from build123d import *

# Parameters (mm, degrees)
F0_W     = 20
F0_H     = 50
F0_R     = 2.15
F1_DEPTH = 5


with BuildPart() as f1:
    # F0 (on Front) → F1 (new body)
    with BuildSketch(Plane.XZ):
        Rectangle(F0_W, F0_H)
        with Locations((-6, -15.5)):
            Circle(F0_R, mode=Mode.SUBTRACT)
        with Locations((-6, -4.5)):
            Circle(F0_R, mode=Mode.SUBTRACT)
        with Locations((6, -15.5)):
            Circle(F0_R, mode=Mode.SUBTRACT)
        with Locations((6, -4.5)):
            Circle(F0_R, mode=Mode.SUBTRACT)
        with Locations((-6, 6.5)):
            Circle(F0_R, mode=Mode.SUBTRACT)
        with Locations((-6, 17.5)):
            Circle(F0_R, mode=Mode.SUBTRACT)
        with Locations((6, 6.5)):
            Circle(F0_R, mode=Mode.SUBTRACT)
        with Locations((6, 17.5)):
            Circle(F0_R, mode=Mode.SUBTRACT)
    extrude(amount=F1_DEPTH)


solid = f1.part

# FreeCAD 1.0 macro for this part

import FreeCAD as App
import Part
import Sketcher

doc = App.newDocument("Part")
body = doc.addObject("PartDesign::Body", "Body")

# Sketch on XZ plane
sketch1 = body.newObject("Sketcher::SketchObject", "Sketch")
sketch1.AttachmentSupport = (doc.getObject("XZ_Plane"), [""])
sketch1.MapMode = "FlatFace"
sketch1.addGeometry([
    Part.LineSegment(App.Vector(-10, 25, 0), App.Vector(-10, -25, 0)),  # 0
    Part.LineSegment(App.Vector(-10, -25, 0), App.Vector(10, -25, 0)),  # 1
    Part.LineSegment(App.Vector(10, -25, 0), App.Vector(10, 25, 0)),  # 2
    Part.LineSegment(App.Vector(10, 25, 0), App.Vector(-10, 25, 0)),  # 3
    Part.Circle(App.Vector(-6, -15.5, 0), App.Vector(0, 0, 1), 2.15),  # 4
    Part.Circle(App.Vector(-6, -4.5, 0), App.Vector(0, 0, 1), 2.15),  # 5
    Part.Circle(App.Vector(6, -15.5, 0), App.Vector(0, 0, 1), 2.15),  # 6
    Part.Circle(App.Vector(6, -4.5, 0), App.Vector(0, 0, 1), 2.15),  # 7
    Part.Circle(App.Vector(-6, 6.5, 0), App.Vector(0, 0, 1), 2.15),  # 8
    Part.Circle(App.Vector(-6, 17.5, 0), App.Vector(0, 0, 1), 2.15),  # 9
    Part.Circle(App.Vector(6, 6.5, 0), App.Vector(0, 0, 1), 2.15),  # 10
    Part.Circle(App.Vector(6, 17.5, 0), App.Vector(0, 0, 1), 2.15),  # 11
], False)
sketch1.addConstraint([
    Sketcher.Constraint("Coincident", 0, 2, 1, 1),
    Sketcher.Constraint("Coincident", 1, 2, 2, 1),
    Sketcher.Constraint("Coincident", 2, 2, 3, 1),
    Sketcher.Constraint("Coincident", 3, 2, 0, 1),
    Sketcher.Constraint("Vertical", 0),
    Sketcher.Constraint("Horizontal", 1),
    Sketcher.Constraint("Vertical", 2),
    Sketcher.Constraint("Horizontal", 3),
    Sketcher.Constraint("Equal", 4, 5),
    Sketcher.Constraint("Equal", 5, 6),
    Sketcher.Constraint("Equal", 6, 7),
    Sketcher.Constraint("Equal", 7, 8),
    Sketcher.Constraint("Equal", 8, 9),
    Sketcher.Constraint("Equal", 9, 10),
    Sketcher.Constraint("Equal", 10, 11),
    Sketcher.Constraint("Symmetric", 0, 2, 2, 2, -1, 1),
    Sketcher.Constraint("Symmetric", 4, 3, 6, 3, -2),
    Sketcher.Constraint("Symmetric", 5, 3, 7, 3, -2),
    Sketcher.Constraint("Symmetric", 8, 3, 10, 3, -2),
    Sketcher.Constraint("Symmetric", 9, 3, 11, 3, -2),
    Sketcher.Constraint("Vertical", 4, 3, 5, 3),
    Sketcher.Constraint("Vertical", 5, 3, 8, 3),
    Sketcher.Constraint("Vertical", 8, 3, 9, 3),
    Sketcher.Constraint("Diameter", 4, 4.3),
    Sketcher.Constraint("DistanceX", 1, 1, 1, 2, 20.0),
    Sketcher.Constraint("DistanceY", 0, 2, 0, 1, 50.0),
    Sketcher.Constraint("DistanceX", 4, 3, -1, 1, 6.0),
    Sketcher.Constraint("DistanceY", 4, 3, 5, 3, 11.0),
    Sketcher.Constraint("DistanceY", 5, 3, 8, 3, 11.0),
    Sketcher.Constraint("DistanceY", 8, 3, 9, 3, 11.0),
    Sketcher.Constraint("DistanceY", 4, 3, -1, 1, 15.5),
])
pad1 = body.newObject("PartDesign::Pad", "Pad")
pad1.Profile = sketch1
pad1.Length = 5

doc.recompute()
